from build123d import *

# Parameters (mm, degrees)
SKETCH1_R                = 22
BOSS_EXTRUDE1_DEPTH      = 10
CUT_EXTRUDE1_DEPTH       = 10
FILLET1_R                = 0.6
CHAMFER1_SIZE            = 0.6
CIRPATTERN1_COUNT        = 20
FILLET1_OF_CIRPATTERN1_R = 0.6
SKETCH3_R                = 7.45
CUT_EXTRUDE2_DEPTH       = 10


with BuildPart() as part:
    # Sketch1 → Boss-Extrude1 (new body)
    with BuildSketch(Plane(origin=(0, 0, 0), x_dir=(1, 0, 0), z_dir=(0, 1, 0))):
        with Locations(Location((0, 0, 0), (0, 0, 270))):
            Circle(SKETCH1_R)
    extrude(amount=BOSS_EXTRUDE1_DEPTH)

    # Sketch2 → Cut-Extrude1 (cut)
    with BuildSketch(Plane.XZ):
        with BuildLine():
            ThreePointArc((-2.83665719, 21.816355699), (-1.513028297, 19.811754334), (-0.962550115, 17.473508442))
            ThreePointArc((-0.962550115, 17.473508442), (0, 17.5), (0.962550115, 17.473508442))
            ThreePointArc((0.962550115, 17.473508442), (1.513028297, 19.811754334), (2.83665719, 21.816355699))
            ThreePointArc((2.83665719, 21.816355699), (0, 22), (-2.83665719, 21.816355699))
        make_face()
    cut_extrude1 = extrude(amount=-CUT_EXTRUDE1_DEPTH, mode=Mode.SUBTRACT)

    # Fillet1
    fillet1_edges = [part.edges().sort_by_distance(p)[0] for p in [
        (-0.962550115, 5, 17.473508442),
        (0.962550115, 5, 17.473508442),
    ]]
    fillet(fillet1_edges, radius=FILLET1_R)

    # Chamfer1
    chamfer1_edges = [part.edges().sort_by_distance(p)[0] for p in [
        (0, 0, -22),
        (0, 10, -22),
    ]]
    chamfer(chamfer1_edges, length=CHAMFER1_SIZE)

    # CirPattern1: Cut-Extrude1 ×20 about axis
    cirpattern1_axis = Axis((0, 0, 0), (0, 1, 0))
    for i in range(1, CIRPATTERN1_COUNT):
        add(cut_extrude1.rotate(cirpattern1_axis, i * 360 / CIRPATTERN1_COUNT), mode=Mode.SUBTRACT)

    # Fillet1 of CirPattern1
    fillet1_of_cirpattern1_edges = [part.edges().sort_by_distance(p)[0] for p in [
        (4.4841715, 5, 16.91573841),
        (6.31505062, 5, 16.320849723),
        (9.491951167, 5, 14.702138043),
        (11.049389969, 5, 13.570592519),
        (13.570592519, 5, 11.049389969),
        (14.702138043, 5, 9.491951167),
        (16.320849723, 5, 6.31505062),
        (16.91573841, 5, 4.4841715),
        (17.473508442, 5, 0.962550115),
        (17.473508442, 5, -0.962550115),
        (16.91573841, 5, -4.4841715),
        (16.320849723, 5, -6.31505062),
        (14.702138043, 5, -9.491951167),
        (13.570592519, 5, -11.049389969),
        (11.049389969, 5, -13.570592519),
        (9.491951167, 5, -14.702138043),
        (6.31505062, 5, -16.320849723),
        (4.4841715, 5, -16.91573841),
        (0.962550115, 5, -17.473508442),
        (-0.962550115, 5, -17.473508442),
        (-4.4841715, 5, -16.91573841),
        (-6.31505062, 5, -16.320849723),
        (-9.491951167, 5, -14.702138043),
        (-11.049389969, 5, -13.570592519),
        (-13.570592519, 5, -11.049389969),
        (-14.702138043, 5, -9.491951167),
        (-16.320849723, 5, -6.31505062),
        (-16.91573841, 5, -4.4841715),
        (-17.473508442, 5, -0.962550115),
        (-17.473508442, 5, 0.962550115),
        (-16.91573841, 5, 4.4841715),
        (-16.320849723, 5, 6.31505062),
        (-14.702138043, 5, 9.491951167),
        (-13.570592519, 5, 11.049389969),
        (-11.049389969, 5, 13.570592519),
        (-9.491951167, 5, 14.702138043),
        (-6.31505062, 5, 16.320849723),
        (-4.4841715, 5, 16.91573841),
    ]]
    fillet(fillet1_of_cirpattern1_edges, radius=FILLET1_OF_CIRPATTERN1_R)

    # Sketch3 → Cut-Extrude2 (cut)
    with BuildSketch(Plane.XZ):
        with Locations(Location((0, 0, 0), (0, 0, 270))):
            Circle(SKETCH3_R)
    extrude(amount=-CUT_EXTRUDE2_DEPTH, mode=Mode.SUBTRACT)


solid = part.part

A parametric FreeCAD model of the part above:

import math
import FreeCAD as App
import Part
import Sketcher
from FreeCAD import Vector


def edges_at(feature, points):
    """Names of the edges that pass closest to the given points."""
    edges = feature.Shape.Edges
    near = lambda p: min(range(len(edges)), key=lambda i: edges[i].distToShape(Part.Vertex(*p))[0])
    return sorted({f"Edge{near(p) + 1}" for p in points})

doc = App.newDocument("Part")
body = doc.addObject("PartDesign::Body", "Body")

# Sketch on XZ plane
sketch1 = body.newObject("Sketcher::SketchObject", "Sketch")
sketch1.AttachmentSupport = (doc.getObject("XZ_Plane"), [""])
sketch1.MapMode = "FlatFace"
sketch1.addGeometry(Part.Circle(Vector(0, 0, 0), Vector(0, 0, 1), 22), False)
sketch1.addConstraint([
    Sketcher.Constraint("Coincident", 0, 3, -1, 1),
    Sketcher.Constraint("Diameter", 0, 44.0),
])
pad1 = body.newObject("PartDesign::Pad", "Pad")
pad1.Profile = sketch1
pad1.Length = 10
pad1.Reversed = True

# Sketch on XZ plane
sketch2 = body.newObject("Sketcher::SketchObject", "Sketch001")
sketch2.AttachmentSupport = (doc.getObject("XZ_Plane"), [""])
sketch2.MapMode = "FlatFace"
sketch2.addGeometry([
    Part.ArcOfCircle(Part.Circle(Vector(-7.8, 17.1, 0), Vector(0, 0, 1), 6.9), math.radians(3), math.radians(44)),
    Part.ArcOfCircle(Part.Circle(Vector(0, 0, 0), Vector(0, 0, 1), 17.5), math.radians(86.85), math.radians(93.15)),
    Part.ArcOfCircle(Part.Circle(Vector(7.8, 17.1, 0), Vector(0, 0, 1), 6.9), math.radians(136), math.radians(177)),
    Part.ArcOfCircle(Part.Circle(Vector(0, 0, 0), Vector(0, 0, 1), 22), math.radians(82.59), math.radians(97.41)),
], False)
sketch2.addConstraint([
    Sketcher.Constraint("Coincident", 0, 1, 1, 2),
    Sketcher.Constraint("Coincident", 1, 1, 2, 2),
    Sketcher.Constraint("Coincident", 2, 1, 3, 1),
    Sketcher.Constraint("Coincident", 3, 2, 0, 2),
    Sketcher.Constraint("Coincident", 1, 3, -1, 1),
    Sketcher.Constraint("Coincident", 3, 3, -1, 1),
    Sketcher.Constraint("Equal", 0, 2),
    Sketcher.Constraint("Symmetric", 0, 3, 2, 3, -2),
    Sketcher.Constraint("Radius", 3, 22.0),
    Sketcher.Constraint("Radius", 1, 17.5),
    Sketcher.Constraint("Radius", 0, 6.852667),
    Sketcher.Constraint("DistanceX", 0, 1, 1, 1, 1.9251),
    Sketcher.Constraint("DistanceX", 0, 3, 2, 1, 10.6415),
])
pocket1 = body.newObject("PartDesign::Pocket", "Pocket")
pocket1.Profile = sketch2
pocket1.Length = 10
doc.recompute()

fillet = body.newObject("PartDesign::Fillet", "Fillet")
fillet.Base = (pocket1, edges_at(pocket1, [(-0.963, 5, 17.474), (0.963, 5, 17.474)]))
fillet.Radius = 0.6
doc.recompute()

chamfer = body.newObject("PartDesign::Chamfer", "Chamfer")
chamfer.Base = (fillet, edges_at(fillet, [(0, 0, -22), (0, 10, -22)]))
chamfer.Size = 0.6
doc.recompute()

polarpattern = body.newObject("PartDesign::PolarPattern", "PolarPattern")
polarpattern.Originals = [pocket1]
polarpattern.Axis = (doc.getObject("Y_Axis"), [""])
polarpattern.Angle = 360
polarpattern.Occurrences = 20
body.Tip = polarpattern
doc.recompute()

fillet2 = body.newObject("PartDesign::Fillet", "Fillet001")
fillet2.Base = (polarpattern, edges_at(polarpattern, [
    (4.484, 5, 16.916),
    (6.315, 5, 16.321),
    (9.492, 5, 14.702),
    (11.049, 5, 13.571),
    (13.571, 5, 11.049),
    (14.702, 5, 9.492),
    (16.321, 5, 6.315),
    (16.916, 5, 4.484),
    (17.474, 5, 0.963),
    (17.474, 5, -0.963),
    (16.916, 5, -4.484),
    (16.321, 5, -6.315),
    (14.702, 5, -9.492),
    (13.571, 5, -11.049),
    (11.049, 5, -13.571),
    (9.492, 5, -14.702),
    (6.315, 5, -16.321),
    (4.484, 5, -16.916),
    (0.963, 5, -17.474),
    (-0.963, 5, -17.474),
    (-4.484, 5, -16.916),
    (-6.315, 5, -16.321),
    (-9.492, 5, -14.702),
    (-11.049, 5, -13.571),
    (-13.571, 5, -11.049),
    (-14.702, 5, -9.492),
    (-16.321, 5, -6.315),
    (-16.916, 5, -4.484),
    (-17.474, 5, -0.963),
    (-17.474, 5, 0.963),
    (-16.916, 5, 4.484),
    (-16.321, 5, 6.315),
    (-14.702, 5, 9.492),
    (-13.571, 5, 11.049),
    (-11.049, 5, 13.571),
    (-9.492, 5, 14.702),
    (-6.315, 5, 16.321),
    (-4.484, 5, 16.916),
]))
fillet2.Radius = 0.6

# Sketch on XZ plane
sketch3 = body.newObject("Sketcher::SketchObject", "Sketch002")
sketch3.AttachmentSupport = (doc.getObject("XZ_Plane"), [""])
sketch3.MapMode = "FlatFace"
sketch3.addGeometry(Part.Circle(Vector(0, 0, 0), Vector(0, 0, 1), 7), False)
sketch3.addConstraint([
    Sketcher.Constraint("Coincident", 0, 3, -1, 1),
    Sketcher.Constraint("Diameter", 0, 14.9),
])
pocket2 = body.newObject("PartDesign::Pocket", "Pocket001")
pocket2.Profile = sketch3
pocket2.Length = 10

doc.recompute()
